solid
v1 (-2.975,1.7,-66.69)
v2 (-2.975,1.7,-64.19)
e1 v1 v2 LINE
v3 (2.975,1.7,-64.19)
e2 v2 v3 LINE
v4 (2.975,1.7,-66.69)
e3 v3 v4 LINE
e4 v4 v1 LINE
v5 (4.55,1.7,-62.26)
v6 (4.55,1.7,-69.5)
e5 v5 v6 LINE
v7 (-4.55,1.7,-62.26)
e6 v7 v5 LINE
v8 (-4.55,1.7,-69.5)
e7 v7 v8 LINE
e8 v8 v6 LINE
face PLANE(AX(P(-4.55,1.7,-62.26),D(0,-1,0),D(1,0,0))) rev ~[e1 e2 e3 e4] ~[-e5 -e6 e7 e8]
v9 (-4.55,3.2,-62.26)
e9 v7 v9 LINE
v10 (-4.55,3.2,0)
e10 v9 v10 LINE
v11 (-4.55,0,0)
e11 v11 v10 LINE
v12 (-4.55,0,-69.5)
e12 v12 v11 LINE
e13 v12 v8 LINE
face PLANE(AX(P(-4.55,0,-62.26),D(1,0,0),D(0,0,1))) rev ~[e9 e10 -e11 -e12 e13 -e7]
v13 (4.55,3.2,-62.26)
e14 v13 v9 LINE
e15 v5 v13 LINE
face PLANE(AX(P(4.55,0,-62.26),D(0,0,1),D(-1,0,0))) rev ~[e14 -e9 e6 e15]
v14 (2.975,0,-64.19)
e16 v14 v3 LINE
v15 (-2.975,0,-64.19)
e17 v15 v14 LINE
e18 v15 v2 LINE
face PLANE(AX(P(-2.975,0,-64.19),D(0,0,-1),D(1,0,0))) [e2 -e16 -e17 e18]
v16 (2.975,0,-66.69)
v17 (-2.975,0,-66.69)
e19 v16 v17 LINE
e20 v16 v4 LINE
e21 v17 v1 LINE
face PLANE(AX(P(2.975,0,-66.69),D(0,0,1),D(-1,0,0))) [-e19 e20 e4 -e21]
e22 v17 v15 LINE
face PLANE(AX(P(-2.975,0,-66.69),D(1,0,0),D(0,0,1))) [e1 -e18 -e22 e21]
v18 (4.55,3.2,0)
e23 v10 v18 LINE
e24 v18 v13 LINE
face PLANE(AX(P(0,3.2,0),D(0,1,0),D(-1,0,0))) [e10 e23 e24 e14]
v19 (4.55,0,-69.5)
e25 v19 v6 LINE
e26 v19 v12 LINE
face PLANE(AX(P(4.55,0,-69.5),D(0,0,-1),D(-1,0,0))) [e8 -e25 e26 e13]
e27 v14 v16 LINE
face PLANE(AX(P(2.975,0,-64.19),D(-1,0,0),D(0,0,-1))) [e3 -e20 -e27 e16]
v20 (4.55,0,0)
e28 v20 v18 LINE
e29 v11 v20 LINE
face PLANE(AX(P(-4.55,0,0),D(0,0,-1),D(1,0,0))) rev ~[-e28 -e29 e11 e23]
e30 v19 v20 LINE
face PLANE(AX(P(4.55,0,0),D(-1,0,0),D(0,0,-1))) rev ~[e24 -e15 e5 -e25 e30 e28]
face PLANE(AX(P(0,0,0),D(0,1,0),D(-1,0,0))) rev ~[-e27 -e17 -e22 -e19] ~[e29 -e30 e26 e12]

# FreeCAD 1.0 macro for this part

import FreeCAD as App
import Part
import Sketcher

V = App.Vector
Q = App.Units.Quantity

doc = App.newDocument("Part")
body = doc.addObject("PartDesign::Body", "Body")

sketch1 = doc.addObject("Sketcher::SketchObject", "Sketch")
body.addObject(sketch1)
sketch1.AttachmentSupport = (doc.XZ_Plane, [""])
sketch1.MapMode = "FlatFace"
sketch1.addGeometry(Part.LineSegment(V(-5, -62, 0), V(-5, 0, 0)), False)
sketch1.addGeometry(Part.LineSegment(V(-5, 0, 0), V(5, 0, 0)), False)
sketch1.addGeometry(Part.LineSegment(V(5, 0, 0), V(5, -62, 0)), False)
sketch1.addGeometry(Part.LineSegment(V(5, -62, 0), V(-5, -62, 0)), False)
sketch1.addConstraint(Sketcher.Constraint("Coincident", 0, 2, 1, 1))
sketch1.addConstraint(Sketcher.Constraint("Coincident", 1, 2, 2, 1))
sketch1.addConstraint(Sketcher.Constraint("Coincident", 2, 2, 3, 1))
sketch1.addConstraint(Sketcher.Constraint("Coincident", 3, 2, 0, 1))
sketch1.addConstraint(Sketcher.Constraint("Vertical", 0))
sketch1.addConstraint(Sketcher.Constraint("Horizontal", 1))
sketch1.addConstraint(Sketcher.Constraint("Vertical", 2))
sketch1.addConstraint(Sketcher.Constraint("Horizontal", 3))
sketch1.addConstraint(Sketcher.Constraint("Symmetric", 0, 2, 1, 2, -1, 1))
sketch1.addConstraint(Sketcher.Constraint("DistanceX", 1, 1, 1, 2, Q("9.1 mm")))
sketch1.addConstraint(Sketcher.Constraint("DistanceY", 0, 1, 0, 2, Q("62.26 mm")))
pad1 = doc.addObject("PartDesign::Pad", "Pad")
body.addObject(pad1)
pad1.Profile = sketch1
pad1.Length = 3.2
pad1.Reversed = True

sketch2 = doc.addObject("Sketcher::SketchObject", "Sketch001")
body.addObject(sketch2)
sketch2.AttachmentSupport = (doc.XY_Plane, [""])
sketch2.MapMode = "FlatFace"
sketch2.AttachmentOffset = App.Placement(V(0, 0, -62.26), App.Rotation())
sketch2.addGeometry(Part.LineSegment(V(4.5, 0, 0), V(-4.5, 0, 0)), False)
sketch2.addGeometry(Part.LineSegment(V(-4.5, 0, 0), V(-4.5, 1.7, 0)), False)
sketch2.addGeometry(Part.LineSegment(V(-4.5, 1.7, 0), V(4.5, 1.7, 0)), False)
sketch2.addGeometry(Part.LineSegment(V(4.5, 1.7, 0), V(4.5, 0, 0)), False)
sketch2.addConstraint(Sketcher.Constraint("Coincident", 0, 2, 1, 1))
sketch2.addConstraint(Sketcher.Constraint("Coincident", 1, 2, 2, 1))
sketch2.addConstraint(Sketcher.Constraint("Coincident", 2, 2, 3, 1))
sketch2.addConstraint(Sketcher.Constraint("Coincident", 3, 2, 0, 1))
sketch2.addConstraint(Sketcher.Constraint("Horizontal", 0))
sketch2.addConstraint(Sketcher.Constraint("Vertical", 1))
sketch2.addConstraint(Sketcher.Constraint("Horizontal", 2))
sketch2.addConstraint(Sketcher.Constraint("Vertical", 3))
sketch2.addConstraint(Sketcher.Constraint("Symmetric", 0, 2, 3, 2, -1, 1))
sketch2.addConstraint(Sketcher.Constraint("DistanceY", 1, 1, 1, 2, Q("1.7 mm")))
sketch2.addConstraint(Sketcher.Constraint("DistanceX", 0, 2, 0, 1, Q("9.1 mm")))
pad2 = doc.addObject("PartDesign::Pad", "Pad001")
body.addObject(pad2)
pad2.Profile = sketch2
pad2.Length = 7.24
pad2.Reversed = True

sketch3 = doc.addObject("Sketcher::SketchObject", "Sketch002")
body.addObject(sketch3)
sketch3.AttachmentSupport = (doc.XZ_Plane, [""])
sketch3.MapMode = "FlatFace"
sketch3.addGeometry(Part.LineSegment(V(-3, -66.7, 0), V(-3, -64.2, 0)), False)
sketch3.addGeometry(Part.LineSegment(V(-3, -64.2, 0), V(3, -64.2, 0)), False)
sketch3.addGeometry(Part.LineSegment(V(3, -64.2, 0), V(3, -66.7, 0)), False)
sketch3.addGeometry(Part.LineSegment(V(3, -66.7, 0), V(-3, -66.7, 0)), False)
sketch3.addConstraint(Sketcher.Constraint("Coincident", 0, 2, 1, 1))
sketch3.addConstraint(Sketcher.Constraint("Coincident", 1, 2, 2, 1))
sketch3.addConstraint(Sketcher.Constraint("Coincident", 2, 2, 3, 1))
sketch3.addConstraint(Sketcher.Constraint("Coincident", 3, 2, 0, 1))
sketch3.addConstraint(Sketcher.Constraint("Vertical", 0))
sketch3.addConstraint(Sketcher.Constraint("Horizontal", 1))
sketch3.addConstraint(Sketcher.Constraint("Vertical", 2))
sketch3.addConstraint(Sketcher.Constraint("Horizontal", 3))
sketch3.addConstraint(Sketcher.Constraint("DistanceY", 0, 1, 0, 2, Q("2.5 mm")))
sketch3.addConstraint(Sketcher.Constraint("DistanceX", 1, 1, 1, 2, Q("5.95 mm")))
sketch3.addConstraint(Sketcher.Constraint("DistanceY", 0, 2, -1, 1, Q("64.19 mm")))
sketch3.addConstraint(Sketcher.Constraint("DistanceX", 0, 2, -1, 1, Q("2.975 mm")))
pocket1 = doc.addObject("PartDesign::Pocket", "Pocket")
body.addObject(pocket1)
pocket1.Profile = sketch3
pocket1.Length = 7

doc.recompute()
